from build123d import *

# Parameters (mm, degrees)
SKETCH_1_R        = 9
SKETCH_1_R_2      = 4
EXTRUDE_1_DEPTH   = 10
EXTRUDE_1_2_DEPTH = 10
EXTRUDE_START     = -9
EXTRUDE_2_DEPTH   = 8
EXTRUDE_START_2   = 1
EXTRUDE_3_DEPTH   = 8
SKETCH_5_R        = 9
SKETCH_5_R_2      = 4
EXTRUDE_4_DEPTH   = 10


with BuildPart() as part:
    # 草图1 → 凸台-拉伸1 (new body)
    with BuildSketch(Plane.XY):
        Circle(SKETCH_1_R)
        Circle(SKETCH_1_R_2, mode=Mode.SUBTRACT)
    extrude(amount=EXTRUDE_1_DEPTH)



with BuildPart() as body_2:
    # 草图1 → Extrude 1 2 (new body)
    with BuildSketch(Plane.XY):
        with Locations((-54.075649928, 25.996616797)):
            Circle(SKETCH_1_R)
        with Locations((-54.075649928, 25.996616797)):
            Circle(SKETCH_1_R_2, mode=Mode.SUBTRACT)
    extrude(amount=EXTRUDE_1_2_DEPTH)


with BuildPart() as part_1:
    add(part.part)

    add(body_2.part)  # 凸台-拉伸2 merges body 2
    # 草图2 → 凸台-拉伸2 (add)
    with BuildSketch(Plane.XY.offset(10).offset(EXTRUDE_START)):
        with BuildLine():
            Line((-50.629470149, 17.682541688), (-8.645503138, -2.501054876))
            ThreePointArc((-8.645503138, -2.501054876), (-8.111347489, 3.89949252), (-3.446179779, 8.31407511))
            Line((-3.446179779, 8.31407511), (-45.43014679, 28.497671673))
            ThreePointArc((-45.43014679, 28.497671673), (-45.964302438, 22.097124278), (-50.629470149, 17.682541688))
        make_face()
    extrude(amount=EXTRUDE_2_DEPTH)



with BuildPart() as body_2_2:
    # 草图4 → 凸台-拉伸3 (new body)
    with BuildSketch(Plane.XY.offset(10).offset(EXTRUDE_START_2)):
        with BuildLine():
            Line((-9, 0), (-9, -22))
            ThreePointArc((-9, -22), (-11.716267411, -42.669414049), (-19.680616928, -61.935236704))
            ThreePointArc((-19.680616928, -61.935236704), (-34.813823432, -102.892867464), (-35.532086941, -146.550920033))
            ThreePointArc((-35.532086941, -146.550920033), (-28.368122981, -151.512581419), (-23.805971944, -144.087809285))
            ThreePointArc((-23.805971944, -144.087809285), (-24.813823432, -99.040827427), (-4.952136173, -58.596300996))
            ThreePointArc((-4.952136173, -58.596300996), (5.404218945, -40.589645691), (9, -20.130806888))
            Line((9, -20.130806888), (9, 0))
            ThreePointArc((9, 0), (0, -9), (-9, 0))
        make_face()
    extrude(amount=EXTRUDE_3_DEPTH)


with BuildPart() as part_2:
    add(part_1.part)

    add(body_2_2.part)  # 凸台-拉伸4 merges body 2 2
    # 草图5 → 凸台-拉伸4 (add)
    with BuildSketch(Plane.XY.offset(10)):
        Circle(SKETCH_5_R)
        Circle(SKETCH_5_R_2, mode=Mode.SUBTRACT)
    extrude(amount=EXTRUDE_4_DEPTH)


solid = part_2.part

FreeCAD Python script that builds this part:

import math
import FreeCAD as App
import Part
import Sketcher
from FreeCAD import Vector
Q = App.Units.Quantity

doc = App.newDocument("Part")
body = doc.addObject("PartDesign::Body", "Body")

# Sketch on XY plane
sketch1 = body.newObject("Sketcher::SketchObject", "Sketch")
sketch1.AttachmentSupport = (doc.getObject("XY_Plane"), [""])
sketch1.MapMode = "FlatFace"
sketch1.addGeometry([
    Part.Circle(Vector(0, 0, 0), Vector(0, 0, 1), 9),
    Part.Circle(Vector(0, 0, 0), Vector(0, 0, 1), 4),
], False)
sketch1.addConstraint([
    Sketcher.Constraint("Coincident", 0, 3, -1, 1),
    Sketcher.Constraint("Coincident", 1, 3, -1, 1),
    Sketcher.Constraint("Diameter", 0, Q("18 mm")),
    Sketcher.Constraint("Diameter", 1, Q("8 mm")),
])
pad1 = body.newObject("PartDesign::Pad", "Pad")
pad1.Profile = sketch1
pad1.Length = 10
body2 = doc.addObject("PartDesign::Body", "Body001")

# Sketch on XY plane
sketch2 = body2.newObject("Sketcher::SketchObject", "Sketch001")
sketch2.AttachmentSupport = (doc.getObject("XY_Plane001"), [""])
sketch2.MapMode = "FlatFace"
sketch2.addGeometry([
    Part.Circle(Vector(-54.07565, 25.996617, 0), Vector(0, 0, 1), 9),
    Part.Circle(Vector(-54.07565, 25.996617, 0), Vector(0, 0, 1), 4),
], False)
sketch2.addConstraint([
    Sketcher.Constraint("Coincident", 1, 3, 0, 3),
    Sketcher.Constraint("Diameter", 0, Q("18 mm")),
    Sketcher.Constraint("Diameter", 1, Q("8 mm")),
    Sketcher.Constraint("DistanceX", 0, 3, -1, 1, Q("54.07565 mm")),
    Sketcher.Constraint("DistanceY", -1, 1, 0, 3, Q("25.996617 mm")),
])
pad2 = body2.newObject("PartDesign::Pad", "Pad001")
pad2.Profile = sketch2
pad2.Length = 10
body.AllowCompound = True
doc.recompute()

boolean = body.newObject("PartDesign::Boolean", "Boolean")
boolean.Type = "Fuse"
boolean.addObjects([body2])

# Sketch on XY plane
sketch3 = body.newObject("Sketcher::SketchObject", "Sketch002")
sketch3.AttachmentSupport = (doc.getObject("XY_Plane"), [""])
sketch3.MapMode = "FlatFace"
sketch3.AttachmentOffset = App.Placement(Vector(0, 0, 1), App.Rotation())
sketch3.addGeometry([
    Part.LineSegment(Vector(-50.62947, 17.682542, 0), Vector(-8.645503, -2.501055, 0)),
    Part.ArcOfCircle(Part.Circle(Vector(0, 0, 0), Vector(0, 0, 1), 9), math.radians(112.513981), math.radians(196.134611)),
    Part.LineSegment(Vector(-3.44618, 8.314075, 0), Vector(-45.430147, 28.497672, 0)),
    Part.ArcOfCircle(Part.Circle(Vector(-54.07565, 25.996617, 0), Vector(0, 0, 1), 9), math.radians(-67.486019), math.radians(16.134611)),
], False)
sketch3.addConstraint([
    Sketcher.Constraint("Coincident", 0, 2, 1, 2),
    Sketcher.Constraint("Coincident", 1, 1, 2, 1),
    Sketcher.Constraint("Coincident", 2, 2, 3, 2),
    Sketcher.Constraint("Coincident", 3, 1, 0, 1),
    Sketcher.Constraint("Coincident", 1, 3, -1, 1),
    Sketcher.Constraint("Equal", 1, 3),
    Sketcher.Constraint("Parallel", 0, 2),
    Sketcher.Constraint("Equal", 0, 2),
    Sketcher.Constraint("Radius", 1, Q("9 mm")),
    Sketcher.Constraint("DistanceX", 3, 3, -1, 1, Q("54.07565 mm")),
    Sketcher.Constraint("DistanceX", 1, 1, -1, 1, Q("3.44618 mm")),
    Sketcher.Constraint("DistanceY", -1, 1, 2, 2, Q("28.497672 mm")),
    Sketcher.Constraint("DistanceY", -1, 1, 3, 1, Q("17.682542 mm")),
])
pad3 = body.newObject("PartDesign::Pad", "Pad002")
pad3.Profile = sketch3
pad3.Length = 8
body3 = doc.addObject("PartDesign::Body", "Body002")

# Sketch on XY plane
sketch4 = body3.newObject("Sketcher::SketchObject", "Sketch003")
sketch4.AttachmentSupport = (doc.getObject("XY_Plane002"), [""])
sketch4.MapMode = "FlatFace"
sketch4.AttachmentOffset = App.Placement(Vector(0, 0, 11), App.Rotation())
sketch4.addGeometry([
    Part.LineSegment(Vector(-9, 0, 0), Vector(-9, -22, 0)),  # 0
    Part.ArcOfCircle(Part.Circle(Vector(-89, -22, 0), Vector(0, 0, 1), 80), math.radians(-29.946456), math.radians(0)),  # 1
    Part.ArcOfCircle(Part.Circle(Vector(92.963381, -126.829996, 0), Vector(0, 0, 1), 130), math.radians(150.053544), math.radians(188.725423)),  # 2
    Part.ArcOfCircle(Part.Circle(Vector(-29.601527, -145.640724, 0), Vector(0, 0, 1), 6), math.radians(-171.274577), math.radians(15)),  # 3
    Part.ArcOfCircle(Part.Circle(Vector(67.956982, -119.5, 0), Vector(0, 0, 1), 95), math.radians(140.126737), math.radians(195)),  # 4
    Part.ArcOfCircle(Part.Circle(Vector(-51, -20.130807, 0), Vector(0, 0, 1), 60), math.radians(-39.873263), math.radians(0)),  # 5
    Part.LineSegment(Vector(9, -20.130807, 0), Vector(9, 0, 0)),  # 6
    Part.ArcOfCircle(Part.Circle(Vector(0, 0, 0), Vector(0, 0, 1), 9), math.radians(180), math.radians(360)),  # 7
], False)
sketch4.addConstraint([
    Sketcher.Constraint("Tangent", 0, 2, 1, 2),
    Sketcher.Constraint("Tangent", 1, 1, 2, 1),
    Sketcher.Constraint("Tangent", 2, 2, 3, 1),
    Sketcher.Constraint("Tangent", 3, 2, 4, 2),
    Sketcher.Constraint("Tangent", 4, 1, 5, 1),
    Sketcher.Constraint("Tangent", 5, 2, 6, 1),
    Sketcher.Constraint("Tangent", 6, 2, 7, 2),
    Sketcher.Constraint("Tangent", 7, 1, 0, 1),
    Sketcher.Constraint("Vertical", 0),
    Sketcher.Constraint("Vertical", 6),
    Sketcher.Constraint("Coincident", 7, 3, -1, 1),
    Sketcher.Constraint("Radius", 1, Q("80 mm")),
    Sketcher.Constraint("Radius", 2, Q("130 mm")),
    Sketcher.Constraint("Radius", 3, Q("6 mm")),
    Sketcher.Constraint("Radius", 4, Q("95 mm")),
    Sketcher.Constraint("Radius", 5, Q("60 mm")),
    Sketcher.Constraint("Radius", 7, Q("9 mm")),
    Sketcher.Constraint("DistanceY", 0, 2, 0, 1, Q("22 mm")),
    Sketcher.Constraint("DistanceY", 4, 3, -1, 1, Q("119.5 mm")),
    Sketcher.Constraint("DistanceY", 4, 1, -1, 1, Q("58.596301 mm")),
    Sketcher.Constraint("DistanceX", 4, 3, 2, 3, Q("25.006399 mm")),
])
pad4 = body3.newObject("PartDesign::Pad", "Pad003")
pad4.Profile = sketch4
pad4.Length = 8
body.AllowCompound = True
doc.recompute()

boolean2 = body.newObject("PartDesign::Boolean", "Boolean001")
boolean2.Type = "Fuse"
boolean2.addObjects([body3])

# Sketch on XY plane
sketch5 = body.newObject("Sketcher::SketchObject", "Sketch004")
sketch5.AttachmentSupport = (doc.getObject("XY_Plane"), [""])
sketch5.MapMode = "FlatFace"
sketch5.AttachmentOffset = App.Placement(Vector(0, 0, 10), App.Rotation())
sketch5.addGeometry([
    Part.Circle(Vector(0, 0, 0), Vector(0, 0, 1), 9),
    Part.Circle(Vector(0, 0, 0), Vector(0, 0, 1), 4),
], False)
sketch5.addConstraint([
    Sketcher.Constraint("Coincident", 0, 3, -1, 1),
    Sketcher.Constraint("Coincident", 1, 3, -1, 1),
    Sketcher.Constraint("Diameter", 0, Q("18 mm")),
    Sketcher.Constraint("Diameter", 1, Q("8 mm")),
])
pad5 = body.newObject("PartDesign::Pad", "Pad004")
pad5.Profile = sketch5
pad5.Length = 10

doc.recompute()
